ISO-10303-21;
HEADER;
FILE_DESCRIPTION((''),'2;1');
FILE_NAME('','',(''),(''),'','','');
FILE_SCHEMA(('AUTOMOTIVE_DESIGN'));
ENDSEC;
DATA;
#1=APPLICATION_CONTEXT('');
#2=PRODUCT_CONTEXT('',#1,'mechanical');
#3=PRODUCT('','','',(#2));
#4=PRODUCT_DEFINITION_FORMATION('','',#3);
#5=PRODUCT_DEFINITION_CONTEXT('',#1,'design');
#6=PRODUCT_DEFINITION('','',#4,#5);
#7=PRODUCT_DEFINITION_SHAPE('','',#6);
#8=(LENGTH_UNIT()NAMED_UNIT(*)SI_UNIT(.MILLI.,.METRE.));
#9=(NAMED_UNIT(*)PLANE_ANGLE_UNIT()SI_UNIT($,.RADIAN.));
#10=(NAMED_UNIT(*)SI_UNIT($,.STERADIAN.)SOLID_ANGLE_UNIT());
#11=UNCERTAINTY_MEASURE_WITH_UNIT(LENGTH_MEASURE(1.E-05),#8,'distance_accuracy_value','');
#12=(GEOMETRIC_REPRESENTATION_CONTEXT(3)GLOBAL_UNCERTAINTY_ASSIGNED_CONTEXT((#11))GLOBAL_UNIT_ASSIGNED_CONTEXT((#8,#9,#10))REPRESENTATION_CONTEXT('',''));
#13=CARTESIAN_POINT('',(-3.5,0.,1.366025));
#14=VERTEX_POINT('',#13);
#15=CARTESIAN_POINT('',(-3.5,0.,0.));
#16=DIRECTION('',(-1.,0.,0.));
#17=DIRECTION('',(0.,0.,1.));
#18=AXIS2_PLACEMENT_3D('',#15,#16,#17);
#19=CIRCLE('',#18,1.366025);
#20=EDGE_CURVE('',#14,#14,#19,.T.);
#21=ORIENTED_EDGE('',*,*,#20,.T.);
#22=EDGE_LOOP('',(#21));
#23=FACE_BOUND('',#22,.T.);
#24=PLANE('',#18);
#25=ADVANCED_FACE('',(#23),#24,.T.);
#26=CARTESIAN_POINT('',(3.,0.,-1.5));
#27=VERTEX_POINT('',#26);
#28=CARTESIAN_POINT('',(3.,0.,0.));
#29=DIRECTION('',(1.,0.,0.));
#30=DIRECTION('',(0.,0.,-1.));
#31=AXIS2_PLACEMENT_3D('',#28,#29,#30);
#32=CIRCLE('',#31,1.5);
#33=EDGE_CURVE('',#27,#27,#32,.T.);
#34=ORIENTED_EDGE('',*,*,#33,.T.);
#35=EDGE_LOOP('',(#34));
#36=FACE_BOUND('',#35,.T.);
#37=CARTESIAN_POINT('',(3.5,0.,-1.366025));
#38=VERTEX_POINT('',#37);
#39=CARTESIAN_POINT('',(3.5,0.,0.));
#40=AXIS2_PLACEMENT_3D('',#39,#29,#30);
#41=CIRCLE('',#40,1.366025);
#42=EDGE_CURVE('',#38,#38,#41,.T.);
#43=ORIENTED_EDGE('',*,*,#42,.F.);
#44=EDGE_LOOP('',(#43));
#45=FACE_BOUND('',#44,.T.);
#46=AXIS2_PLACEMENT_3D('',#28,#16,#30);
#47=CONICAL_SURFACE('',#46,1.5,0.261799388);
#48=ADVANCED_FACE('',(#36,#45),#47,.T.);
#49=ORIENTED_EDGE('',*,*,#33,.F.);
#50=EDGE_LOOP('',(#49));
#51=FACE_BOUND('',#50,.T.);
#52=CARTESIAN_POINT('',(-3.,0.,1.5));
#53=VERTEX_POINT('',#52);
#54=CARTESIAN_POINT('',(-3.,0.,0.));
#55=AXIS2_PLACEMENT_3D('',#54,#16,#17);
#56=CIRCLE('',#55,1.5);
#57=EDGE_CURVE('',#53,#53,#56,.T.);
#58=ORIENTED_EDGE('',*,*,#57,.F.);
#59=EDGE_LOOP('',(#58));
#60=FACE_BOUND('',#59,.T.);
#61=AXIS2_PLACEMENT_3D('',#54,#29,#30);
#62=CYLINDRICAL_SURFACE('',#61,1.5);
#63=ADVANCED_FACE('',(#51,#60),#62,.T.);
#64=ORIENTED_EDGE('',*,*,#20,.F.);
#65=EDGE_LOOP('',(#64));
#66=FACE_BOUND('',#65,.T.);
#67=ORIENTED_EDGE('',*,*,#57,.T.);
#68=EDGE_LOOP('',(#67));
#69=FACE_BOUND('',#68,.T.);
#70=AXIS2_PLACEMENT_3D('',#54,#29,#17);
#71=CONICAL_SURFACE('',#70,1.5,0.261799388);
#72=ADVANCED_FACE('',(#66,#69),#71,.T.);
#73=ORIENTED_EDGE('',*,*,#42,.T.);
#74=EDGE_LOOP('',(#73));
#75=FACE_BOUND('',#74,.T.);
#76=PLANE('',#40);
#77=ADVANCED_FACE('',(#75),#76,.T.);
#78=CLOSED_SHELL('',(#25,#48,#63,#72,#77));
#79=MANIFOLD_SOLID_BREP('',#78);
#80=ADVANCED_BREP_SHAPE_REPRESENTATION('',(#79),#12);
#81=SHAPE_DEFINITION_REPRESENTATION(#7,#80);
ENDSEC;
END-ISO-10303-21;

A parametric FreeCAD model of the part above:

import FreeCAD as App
import Part
import Sketcher

V = App.Vector
Q = App.Units.Quantity

doc = App.newDocument("Part")
body = doc.addObject("PartDesign::Body", "Body")

sketch1 = body.newObject("Sketcher::SketchObject", "Sketch")
sketch1.AttachmentSupport = (doc.getObject("YZ_Plane"), [""])
sketch1.MapMode = "FlatFace"
sketch1.addGeometry(Part.Circle(V(0, 0, 0), V(0, 0, 1), 1.5), False)
sketch1.addConstraint([
    Sketcher.Constraint("Coincident", 0, 3, -1, 1),
    Sketcher.Constraint("Diameter", 0, Q("3 mm")),
])
pad1 = body.newObject("PartDesign::Pad", "Pad")
pad1.Profile = sketch1
pad1.Type = "TwoLengths"
pad1.Length = 3
pad1.Length2 = 3

sketch2 = body.newObject("Sketcher::SketchObject", "Sketch001")
sketch2.AttachmentSupport = (doc.getObject("YZ_Plane"), [""])
sketch2.MapMode = "FlatFace"
sketch2.AttachmentOffset = App.Placement(V(0, 0, 3), App.Rotation())
sketch2.addGeometry(Part.Circle(V(0, 0, 0), V(0, 0, 1), 1.5), False)
sketch2.addConstraint([
    Sketcher.Constraint("Coincident", 0, 3, -1, 1),
    Sketcher.Constraint("Diameter", 0, Q("3 mm")),
])
pad2 = body.newObject("PartDesign::Pad", "Pad001")
pad2.Profile = sketch2
pad2.Length = 0.5
pad2.TaperAngle = -15

sketch3 = body.newObject("Sketcher::SketchObject", "Sketch002")
sketch3.AttachmentSupport = (doc.getObject("YZ_Plane"), [""])
sketch3.MapMode = "FlatFace"
sketch3.AttachmentOffset = App.Placement(V(0, 0, -3), App.Rotation())
sketch3.addGeometry(Part.Circle(V(0, 0, 0), V(0, 0, 1), 1.5), False)
sketch3.addConstraint([
    Sketcher.Constraint("Coincident", 0, 3, -1, 1),
    Sketcher.Constraint("Diameter", 0, Q("3 mm")),
])
pad3 = body.newObject("PartDesign::Pad", "Pad002")
pad3.Profile = sketch3
pad3.Length = 0.5
pad3.Reversed = True
pad3.TaperAngle = -15

doc.recompute()
